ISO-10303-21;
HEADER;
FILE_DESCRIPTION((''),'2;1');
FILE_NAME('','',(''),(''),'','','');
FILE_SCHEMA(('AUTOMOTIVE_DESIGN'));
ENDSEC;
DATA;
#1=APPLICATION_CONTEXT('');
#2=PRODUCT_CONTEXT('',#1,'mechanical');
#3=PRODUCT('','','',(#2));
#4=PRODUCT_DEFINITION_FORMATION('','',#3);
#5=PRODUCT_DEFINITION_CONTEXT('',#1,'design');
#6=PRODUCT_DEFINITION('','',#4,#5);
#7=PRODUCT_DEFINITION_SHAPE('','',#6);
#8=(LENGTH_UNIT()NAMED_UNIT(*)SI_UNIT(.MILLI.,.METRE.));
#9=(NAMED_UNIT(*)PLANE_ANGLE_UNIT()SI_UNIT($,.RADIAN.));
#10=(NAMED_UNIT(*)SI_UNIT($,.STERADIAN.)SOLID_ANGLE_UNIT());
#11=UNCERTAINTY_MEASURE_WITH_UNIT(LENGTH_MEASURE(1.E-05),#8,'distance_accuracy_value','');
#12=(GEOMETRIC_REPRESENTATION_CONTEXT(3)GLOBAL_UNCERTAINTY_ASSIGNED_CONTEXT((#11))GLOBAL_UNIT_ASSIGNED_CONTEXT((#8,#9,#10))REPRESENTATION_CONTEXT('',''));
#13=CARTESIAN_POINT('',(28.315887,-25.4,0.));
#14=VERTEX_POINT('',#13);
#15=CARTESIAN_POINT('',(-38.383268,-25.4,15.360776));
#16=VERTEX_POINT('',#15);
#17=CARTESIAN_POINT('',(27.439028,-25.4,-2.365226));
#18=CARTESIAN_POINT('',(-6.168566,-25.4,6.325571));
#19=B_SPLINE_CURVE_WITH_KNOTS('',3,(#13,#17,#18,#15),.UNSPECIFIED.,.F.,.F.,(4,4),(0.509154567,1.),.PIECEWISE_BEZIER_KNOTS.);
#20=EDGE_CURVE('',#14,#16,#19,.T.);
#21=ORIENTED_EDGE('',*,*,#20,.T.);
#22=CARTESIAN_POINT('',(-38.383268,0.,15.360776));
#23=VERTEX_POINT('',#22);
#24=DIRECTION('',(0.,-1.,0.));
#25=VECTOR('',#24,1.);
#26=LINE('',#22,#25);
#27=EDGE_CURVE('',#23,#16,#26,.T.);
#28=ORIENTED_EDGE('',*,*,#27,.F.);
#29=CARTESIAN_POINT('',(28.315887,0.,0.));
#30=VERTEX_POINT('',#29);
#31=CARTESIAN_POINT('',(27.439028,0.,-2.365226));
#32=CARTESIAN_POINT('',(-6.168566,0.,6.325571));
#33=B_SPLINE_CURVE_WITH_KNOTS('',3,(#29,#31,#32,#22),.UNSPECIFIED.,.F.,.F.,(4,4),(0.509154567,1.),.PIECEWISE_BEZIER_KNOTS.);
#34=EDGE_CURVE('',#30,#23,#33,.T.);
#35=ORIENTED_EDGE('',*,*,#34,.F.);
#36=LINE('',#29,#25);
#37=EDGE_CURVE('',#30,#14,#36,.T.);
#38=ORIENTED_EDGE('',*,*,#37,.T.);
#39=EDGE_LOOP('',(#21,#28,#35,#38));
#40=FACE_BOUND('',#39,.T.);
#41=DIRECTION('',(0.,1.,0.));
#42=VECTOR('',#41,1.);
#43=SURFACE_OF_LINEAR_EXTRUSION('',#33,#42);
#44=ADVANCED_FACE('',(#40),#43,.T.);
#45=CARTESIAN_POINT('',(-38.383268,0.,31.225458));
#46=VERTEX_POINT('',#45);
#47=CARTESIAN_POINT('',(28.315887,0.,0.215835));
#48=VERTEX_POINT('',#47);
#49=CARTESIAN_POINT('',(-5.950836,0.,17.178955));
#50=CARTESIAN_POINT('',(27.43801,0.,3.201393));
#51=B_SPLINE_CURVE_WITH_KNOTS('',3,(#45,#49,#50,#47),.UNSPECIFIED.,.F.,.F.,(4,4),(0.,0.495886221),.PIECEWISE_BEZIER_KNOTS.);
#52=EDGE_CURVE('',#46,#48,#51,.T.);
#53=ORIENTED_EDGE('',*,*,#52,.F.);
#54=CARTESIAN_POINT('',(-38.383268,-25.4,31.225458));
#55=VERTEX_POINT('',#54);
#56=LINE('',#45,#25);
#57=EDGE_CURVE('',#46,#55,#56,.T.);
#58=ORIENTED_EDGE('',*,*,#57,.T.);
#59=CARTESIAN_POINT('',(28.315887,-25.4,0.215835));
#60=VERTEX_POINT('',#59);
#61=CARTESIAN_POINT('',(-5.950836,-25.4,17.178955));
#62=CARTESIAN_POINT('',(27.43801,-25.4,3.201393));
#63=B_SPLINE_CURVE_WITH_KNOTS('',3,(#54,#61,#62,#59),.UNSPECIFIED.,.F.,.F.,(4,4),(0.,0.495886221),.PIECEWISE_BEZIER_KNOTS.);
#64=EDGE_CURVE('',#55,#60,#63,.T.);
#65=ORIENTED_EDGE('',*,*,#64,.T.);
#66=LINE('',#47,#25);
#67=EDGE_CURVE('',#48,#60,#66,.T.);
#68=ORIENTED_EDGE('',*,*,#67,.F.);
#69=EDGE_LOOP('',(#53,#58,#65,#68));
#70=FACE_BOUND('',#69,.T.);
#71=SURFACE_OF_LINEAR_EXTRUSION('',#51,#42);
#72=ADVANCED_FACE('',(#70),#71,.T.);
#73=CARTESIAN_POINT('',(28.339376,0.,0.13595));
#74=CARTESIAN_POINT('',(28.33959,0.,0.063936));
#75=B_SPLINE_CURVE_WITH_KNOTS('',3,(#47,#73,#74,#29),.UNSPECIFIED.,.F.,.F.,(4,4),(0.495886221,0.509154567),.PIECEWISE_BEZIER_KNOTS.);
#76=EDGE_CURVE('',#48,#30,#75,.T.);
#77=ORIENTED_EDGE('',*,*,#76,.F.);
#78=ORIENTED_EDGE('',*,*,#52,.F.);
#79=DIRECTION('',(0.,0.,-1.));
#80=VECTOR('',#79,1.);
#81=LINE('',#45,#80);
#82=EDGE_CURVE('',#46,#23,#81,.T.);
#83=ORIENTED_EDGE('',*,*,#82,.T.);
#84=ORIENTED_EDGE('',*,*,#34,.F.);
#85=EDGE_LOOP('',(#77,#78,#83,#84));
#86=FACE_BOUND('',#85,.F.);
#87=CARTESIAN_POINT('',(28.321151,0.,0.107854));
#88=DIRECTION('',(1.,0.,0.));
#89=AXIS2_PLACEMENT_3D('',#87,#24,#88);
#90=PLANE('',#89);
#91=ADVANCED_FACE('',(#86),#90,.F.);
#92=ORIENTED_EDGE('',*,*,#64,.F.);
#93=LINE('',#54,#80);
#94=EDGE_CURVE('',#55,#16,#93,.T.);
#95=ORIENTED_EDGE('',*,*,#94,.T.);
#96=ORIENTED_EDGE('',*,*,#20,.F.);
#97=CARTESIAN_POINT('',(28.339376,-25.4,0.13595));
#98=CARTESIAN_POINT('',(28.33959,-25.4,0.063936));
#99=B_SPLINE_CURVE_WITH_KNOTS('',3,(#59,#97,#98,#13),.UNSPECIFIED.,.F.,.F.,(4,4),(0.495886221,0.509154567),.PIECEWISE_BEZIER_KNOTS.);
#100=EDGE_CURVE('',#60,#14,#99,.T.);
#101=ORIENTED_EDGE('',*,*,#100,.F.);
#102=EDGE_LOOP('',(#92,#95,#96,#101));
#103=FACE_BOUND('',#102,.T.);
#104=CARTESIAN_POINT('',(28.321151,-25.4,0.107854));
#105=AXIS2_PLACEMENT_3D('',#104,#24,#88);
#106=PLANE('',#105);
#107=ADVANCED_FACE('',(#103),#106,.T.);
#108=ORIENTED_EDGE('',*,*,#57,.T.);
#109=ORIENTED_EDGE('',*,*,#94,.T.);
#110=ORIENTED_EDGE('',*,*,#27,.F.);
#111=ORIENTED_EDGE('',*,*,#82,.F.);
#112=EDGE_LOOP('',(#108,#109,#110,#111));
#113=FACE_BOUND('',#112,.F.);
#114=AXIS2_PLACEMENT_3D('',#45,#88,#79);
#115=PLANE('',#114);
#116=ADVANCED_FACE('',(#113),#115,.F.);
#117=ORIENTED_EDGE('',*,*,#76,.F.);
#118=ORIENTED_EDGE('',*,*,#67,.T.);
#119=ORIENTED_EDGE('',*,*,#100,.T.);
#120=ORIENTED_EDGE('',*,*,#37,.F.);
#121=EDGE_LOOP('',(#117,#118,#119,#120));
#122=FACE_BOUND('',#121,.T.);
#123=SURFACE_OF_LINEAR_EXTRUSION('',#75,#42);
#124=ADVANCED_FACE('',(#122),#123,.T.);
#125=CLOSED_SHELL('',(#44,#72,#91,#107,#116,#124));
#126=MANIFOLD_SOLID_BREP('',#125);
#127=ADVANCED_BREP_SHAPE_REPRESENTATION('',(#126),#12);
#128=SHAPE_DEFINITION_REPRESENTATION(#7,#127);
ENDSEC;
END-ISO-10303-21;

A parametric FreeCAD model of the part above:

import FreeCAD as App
import Part
import Sketcher
from FreeCAD import Vector
Q = App.Units.Quantity

doc = App.newDocument("Part")
body = doc.addObject("PartDesign::Body", "Body")

# Sketch on XZ plane
sketch1 = body.newObject("Sketcher::SketchObject", "Sketch")
sketch1.AttachmentSupport = (doc.getObject("XZ_Plane"), [""])
sketch1.MapMode = "FlatFace"
sketch1.addGeometry([
    Part.BSplineCurve([Vector(28.315887, 0.215835, 0), Vector(28.339376, 0.13595, 0), Vector(28.33959, 0.063936, 0), Vector(28.315887, 0, 0)], [4, 4], [0.495886221, 0.509154567], False, 3, [1, 1, 1, 1], False),
    Part.BSplineCurve([Vector(-38.383268, 31.225458, 0), Vector(-5.950836, 17.178955, 0), Vector(27.43801, 3.201393, 0), Vector(28.315887, 0.215835, 0)], [4, 4], [0, 0.495886221], False, 3, [1, 1, 1, 1], False),
    Part.LineSegment(Vector(-38.383268, 31.225458, 0), Vector(-38.383268, 15.360776, 0)),
    Part.BSplineCurve([Vector(28.315887, 0, 0), Vector(27.439028, -2.365226, 0), Vector(-6.168566, 6.325571, 0), Vector(-38.383268, 15.360776, 0)], [4, 4], [0.509154567, 1], False, 3, [1, 1, 1, 1], False),
], False)
sketch1.addConstraint([
    Sketcher.Constraint("Block", 0),
    Sketcher.Constraint("Block", 1),
    Sketcher.Constraint("Block", 3),
    Sketcher.Constraint("Coincident", 1, 1, 2, 1),
    Sketcher.Constraint("Coincident", 2, 2, 3, 2),
])
pad1 = body.newObject("PartDesign::Pad", "Pad")
pad1.Profile = sketch1
pad1.Length = Q("1 in")

doc.recompute()
